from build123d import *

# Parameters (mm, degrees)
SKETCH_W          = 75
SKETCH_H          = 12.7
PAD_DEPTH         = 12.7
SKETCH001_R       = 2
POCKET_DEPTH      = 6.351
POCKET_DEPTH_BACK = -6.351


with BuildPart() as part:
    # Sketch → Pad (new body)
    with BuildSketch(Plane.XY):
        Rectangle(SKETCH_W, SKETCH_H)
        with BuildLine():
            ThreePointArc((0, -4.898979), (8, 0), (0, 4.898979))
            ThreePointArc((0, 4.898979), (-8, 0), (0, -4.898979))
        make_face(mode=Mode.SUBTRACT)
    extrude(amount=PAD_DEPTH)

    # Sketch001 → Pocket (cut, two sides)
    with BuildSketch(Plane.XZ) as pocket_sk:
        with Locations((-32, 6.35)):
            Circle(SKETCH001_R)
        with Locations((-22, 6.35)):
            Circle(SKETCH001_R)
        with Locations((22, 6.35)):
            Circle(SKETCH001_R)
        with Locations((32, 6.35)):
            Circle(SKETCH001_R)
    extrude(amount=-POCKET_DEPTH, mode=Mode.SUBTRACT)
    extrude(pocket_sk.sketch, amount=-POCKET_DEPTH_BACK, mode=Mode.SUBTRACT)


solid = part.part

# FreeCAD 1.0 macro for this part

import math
import FreeCAD as App
import Part
import Sketcher
from FreeCAD import Vector
Q = App.Units.Quantity

doc = App.newDocument("Part")
body = doc.addObject("PartDesign::Body", "Body")

sketch1 = doc.addObject("Sketcher::SketchObject", "Sketch")
body.addObject(sketch1)
sketch1.AttachmentSupport = (doc.XY_Plane, [""])
sketch1.MapMode = "FlatFace"
sketch1.addGeometry([
    Part.LineSegment(Vector(-37.5, 6.35, 0), Vector(-37.5, -6.35, 0)),
    Part.LineSegment(Vector(-37.5, -6.35, 0), Vector(37.5, -6.35, 0)),
    Part.LineSegment(Vector(37.5, -6.35, 0), Vector(37.5, 6.35, 0)),
    Part.LineSegment(Vector(37.5, 6.35, 0), Vector(-37.5, 6.35, 0)),
    Part.ArcOfCircle(Part.Circle(Vector(2.5, 0, 0), Vector(0, 0, 1), 5.5), math.radians(-117.035697), math.radians(117.035697)),
    Part.ArcOfCircle(Part.Circle(Vector(-2.5, 0, 0), Vector(0, 0, 1), 5.5), math.radians(62.964303), math.radians(297.035697)),
], False)
sketch1.addConstraint([
    Sketcher.Constraint("Coincident", 0, 2, 1, 1),
    Sketcher.Constraint("Coincident", 1, 2, 2, 1),
    Sketcher.Constraint("Coincident", 2, 2, 3, 1),
    Sketcher.Constraint("Coincident", 3, 2, 0, 1),
    Sketcher.Constraint("Coincident", 4, 1, 5, 2),
    Sketcher.Constraint("Coincident", 5, 1, 4, 2),
    Sketcher.Constraint("Vertical", 0),
    Sketcher.Constraint("Horizontal", 1),
    Sketcher.Constraint("Vertical", 2),
    Sketcher.Constraint("Horizontal", 3),
    Sketcher.Constraint("Equal", 4, 5),
    Sketcher.Constraint("Symmetric", 4, 3, 5, 3, -1, 1),
    Sketcher.Constraint("Symmetric", 0, 2, 2, 2, -1, 1),
    Sketcher.Constraint("PointOnObject", 4, 3, -1),
    Sketcher.Constraint("Radius", 4, Q("5.5 mm")),
    Sketcher.Constraint("DistanceX", 1, 1, 1, 2, Q("75 mm")),
    Sketcher.Constraint("DistanceY", 0, 2, 0, 1, Q("12.7 mm")),
    Sketcher.Constraint("DistanceX", 5, 3, 4, 3, Q("5.000001 mm")),
])
pad1 = doc.addObject("PartDesign::Pad", "Pad")
body.addObject(pad1)
pad1.Profile = sketch1
pad1.Length = 12.7

sketch2 = doc.addObject("Sketcher::SketchObject", "Sketch001")
body.addObject(sketch2)
sketch2.AttachmentSupport = (doc.XZ_Plane, [""])
sketch2.MapMode = "FlatFace"
sketch2.addGeometry([
    Part.Circle(Vector(-32, 6.35, 0), Vector(0, 0, 1), 2),
    Part.Circle(Vector(-22, 6.35, 0), Vector(0, 0, 1), 2),
    Part.Circle(Vector(22, 6.35, 0), Vector(0, 0, 1), 2),
    Part.Circle(Vector(32, 6.35, 0), Vector(0, 0, 1), 2),
], False)
sketch2.addConstraint([
    Sketcher.Constraint("Equal", 0, 1),
    Sketcher.Constraint("Equal", 1, 2),
    Sketcher.Constraint("Equal", 2, 3),
    Sketcher.Constraint("Symmetric", 1, 3, 2, 3, -2),
    Sketcher.Constraint("Symmetric", 0, 3, 3, 3, -2),
    Sketcher.Constraint("Horizontal", 0, 3, 1, 3),
    Sketcher.Constraint("Diameter", 0, Q("4 mm")),
    Sketcher.Constraint("DistanceX", 0, 3, -1, 1, Q("32 mm")),
    Sketcher.Constraint("DistanceX", 1, 3, -1, 1, Q("22 mm")),
    Sketcher.Constraint("DistanceY", -1, 1, 0, 3, Q("6.35 mm")),
])
pocket1 = doc.addObject("PartDesign::Pocket", "Pocket")
body.addObject(pocket1)
pocket1.Profile = sketch2
pocket1.Type = "ThroughAll"
pocket1.Midplane = True

doc.recompute()
